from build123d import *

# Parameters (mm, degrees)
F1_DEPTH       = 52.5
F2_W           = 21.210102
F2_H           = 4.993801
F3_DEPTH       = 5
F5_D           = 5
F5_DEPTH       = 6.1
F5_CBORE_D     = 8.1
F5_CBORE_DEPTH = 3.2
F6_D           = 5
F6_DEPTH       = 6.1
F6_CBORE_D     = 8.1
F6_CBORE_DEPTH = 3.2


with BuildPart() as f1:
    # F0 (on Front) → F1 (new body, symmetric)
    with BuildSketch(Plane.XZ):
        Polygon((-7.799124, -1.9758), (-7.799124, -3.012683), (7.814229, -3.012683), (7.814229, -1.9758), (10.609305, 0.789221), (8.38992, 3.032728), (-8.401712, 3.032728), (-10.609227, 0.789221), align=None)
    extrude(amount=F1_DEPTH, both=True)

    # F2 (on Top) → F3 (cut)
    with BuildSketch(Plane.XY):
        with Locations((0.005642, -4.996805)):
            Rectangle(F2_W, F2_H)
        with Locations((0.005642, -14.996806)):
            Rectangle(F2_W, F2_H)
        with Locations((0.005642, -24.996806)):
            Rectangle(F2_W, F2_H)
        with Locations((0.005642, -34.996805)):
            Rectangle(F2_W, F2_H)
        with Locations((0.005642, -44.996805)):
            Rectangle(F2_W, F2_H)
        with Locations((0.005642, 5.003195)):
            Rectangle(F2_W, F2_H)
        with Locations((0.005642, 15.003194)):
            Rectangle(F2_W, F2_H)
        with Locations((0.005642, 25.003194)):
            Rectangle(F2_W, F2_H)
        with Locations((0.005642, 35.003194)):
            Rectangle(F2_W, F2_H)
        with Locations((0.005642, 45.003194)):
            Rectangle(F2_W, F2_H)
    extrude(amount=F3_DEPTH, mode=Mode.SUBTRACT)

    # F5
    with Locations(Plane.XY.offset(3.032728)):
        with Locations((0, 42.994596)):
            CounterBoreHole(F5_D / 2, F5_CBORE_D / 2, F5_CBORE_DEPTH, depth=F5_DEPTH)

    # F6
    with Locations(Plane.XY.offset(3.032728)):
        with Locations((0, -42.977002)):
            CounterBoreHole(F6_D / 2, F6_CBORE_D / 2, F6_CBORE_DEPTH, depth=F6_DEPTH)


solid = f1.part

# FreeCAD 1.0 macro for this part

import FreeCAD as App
import Part
import Sketcher
from FreeCAD import Vector


def add_polygon(sketch, points):
    """Adds a closed chain of lines whose ends are joined by coincident constraints."""
    first, n = sketch.GeometryCount, len(points)
    for a, b in zip(points, points[1:] + points[:1]):
        sketch.addGeometry(Part.LineSegment(App.Vector(*a, 0), App.Vector(*b, 0)), False)
    for i in range(n):
        sketch.addConstraint(Sketcher.Constraint("Coincident", first + i, 2, first + (i + 1) % n, 1))

doc = App.newDocument("Part")
body = doc.addObject("PartDesign::Body", "Body")

# Sketch on XZ plane
sketch1 = body.newObject("Sketcher::SketchObject", "Sketch")
sketch1.AttachmentSupport = (doc.getObject("XZ_Plane"), [""])
sketch1.MapMode = "FlatFace"
add_polygon(sketch1, [(-7.799124, -1.9758), (-7.799124, -3.012683), (7.814229, -3.012683), (7.814229, -1.9758), (10.609305, 0.789221), (8.38992, 3.032728), (-8.401712, 3.032728), (-10.609227, 0.789221)])  # lines 0-7
sketch1.addConstraint([
    Sketcher.Constraint("Vertical", 0),
    Sketcher.Constraint("Horizontal", 1),
    Sketcher.Constraint("Vertical", 2),
    Sketcher.Constraint("Horizontal", 5),
    Sketcher.Constraint("Perpendicular", 3, 4),
    Sketcher.Constraint("Perpendicular", 6, 7),
    Sketcher.Constraint("Horizontal", 3, 2, 6, 2),
    Sketcher.Constraint("Horizontal", 2, 2, 7, 2),
    Sketcher.Constraint("DistanceX", 5, 2, 5, 1, 16.791632),
    Sketcher.Constraint("DistanceY", 2, 2, -1, 1, 1.9758),
    Sketcher.Constraint("Distance", 3, 3.93164),
    Sketcher.Constraint("Distance", 6, 3.147451),
    Sketcher.Constraint("DistanceX", 1, 1, 1, 2, 15.613353),
    Sketcher.Constraint("DistanceY", 0, 2, 0, 1, 1.036883),
    Sketcher.Constraint("DistanceX", -1, 1, 1, 2, 7.814229),
    Sketcher.Constraint("DistanceY", -1, 1, 3, 2, 0.789221),
])
pad1 = body.newObject("PartDesign::Pad", "Pad")
pad1.Profile = sketch1
pad1.Length = 105
pad1.Midplane = True

# Sketch on XY plane
sketch2 = body.newObject("Sketcher::SketchObject", "Sketch001")
sketch2.AttachmentSupport = (doc.getObject("XY_Plane"), [""])
sketch2.MapMode = "FlatFace"
add_polygon(sketch2, [(-10.599409, -2.499904), (-10.599409, -7.493705), (10.610693, -7.493705), (10.610693, -2.499904)])  # lines 0-3
add_polygon(sketch2, [(-10.599409, -12.499906), (-10.599409, -17.493706), (10.610693, -17.493706), (10.610693, -12.499906)])  # lines 4-7
add_polygon(sketch2, [(-10.599409, -22.499906), (-10.599409, -27.493706), (10.610693, -27.493706), (10.610693, -22.499906)])  # lines 8-11
add_polygon(sketch2, [(-10.599409, -32.499904), (-10.599409, -37.493705), (10.610693, -37.493705), (10.610693, -32.499904)])  # lines 12-15
add_polygon(sketch2, [(-10.599409, -42.499904), (-10.599409, -47.493705), (10.610693, -47.493705), (10.610693, -42.499904)])  # lines 16-19
add_polygon(sketch2, [(-10.599409, 7.500095), (-10.599409, 2.506295), (10.610693, 2.506295), (10.610693, 7.500095)])  # lines 20-23
add_polygon(sketch2, [(-10.599409, 17.500094), (-10.599409, 12.506293), (10.610693, 12.506293), (10.610693, 17.500094)])  # lines 24-27
add_polygon(sketch2, [(-10.599409, 27.500094), (-10.599409, 22.506294), (10.610693, 22.506294), (10.610693, 27.500094)])  # lines 28-31
add_polygon(sketch2, [(-10.599409, 37.500095), (-10.599409, 32.506293), (10.610693, 32.506293), (10.610693, 37.500095)])  # lines 32-35
add_polygon(sketch2, [(-10.599409, 47.500095), (-10.599409, 42.506293), (10.610693, 42.506293), (10.610693, 47.500095)])  # lines 36-39
sketch2.addConstraint([
    Sketcher.Constraint("Vertical", 0),
    Sketcher.Constraint("Horizontal", 1),
    Sketcher.Constraint("Vertical", 2),
    Sketcher.Constraint("Horizontal", 3),
    Sketcher.Constraint("Vertical", 4),
    Sketcher.Constraint("Horizontal", 5),
    Sketcher.Constraint("Vertical", 6),
    Sketcher.Constraint("Horizontal", 7),
    Sketcher.Constraint("Vertical", 8),
    Sketcher.Constraint("Horizontal", 9),
    Sketcher.Constraint("Vertical", 10),
    Sketcher.Constraint("Horizontal", 11),
    Sketcher.Constraint("Vertical", 12),
    Sketcher.Constraint("Horizontal", 13),
    Sketcher.Constraint("Vertical", 14),
    Sketcher.Constraint("Horizontal", 15),
    Sketcher.Constraint("Vertical", 16),
    Sketcher.Constraint("Horizontal", 17),
    Sketcher.Constraint("Vertical", 18),
    Sketcher.Constraint("Horizontal", 19),
    Sketcher.Constraint("Vertical", 20),
    Sketcher.Constraint("Horizontal", 21),
    Sketcher.Constraint("Vertical", 22),
    Sketcher.Constraint("Horizontal", 23),
    Sketcher.Constraint("Vertical", 24),
    Sketcher.Constraint("Horizontal", 25),
    Sketcher.Constraint("Vertical", 26),
    Sketcher.Constraint("Horizontal", 27),
    Sketcher.Constraint("Vertical", 28),
    Sketcher.Constraint("Horizontal", 29),
    Sketcher.Constraint("Vertical", 30),
    Sketcher.Constraint("Horizontal", 31),
    Sketcher.Constraint("Vertical", 32),
    Sketcher.Constraint("Horizontal", 33),
    Sketcher.Constraint("Vertical", 34),
    Sketcher.Constraint("Horizontal", 35),
    Sketcher.Constraint("Vertical", 36),
    Sketcher.Constraint("Horizontal", 37),
    Sketcher.Constraint("Vertical", 38),
    Sketcher.Constraint("Horizontal", 39),
    Sketcher.Constraint("Vertical", 3, 2, 4, 2),
    Sketcher.Constraint("Vertical", 2, 2, 5, 2),
    Sketcher.Constraint("Vertical", 7, 2, 8, 2),
    Sketcher.Constraint("Vertical", 6, 2, 9, 2),
    Sketcher.Constraint("Vertical", 11, 2, 12, 2),
    Sketcher.Constraint("Vertical", 10, 2, 13, 2),
    Sketcher.Constraint("Vertical", 15, 2, 16, 2),
    Sketcher.Constraint("Vertical", 14, 2, 17, 2),
    Sketcher.Constraint("Vertical", 19, 2, 20, 2),
    Sketcher.Constraint("Vertical", 18, 2, 21, 2),
    Sketcher.Constraint("Vertical", 23, 2, 24, 2),
    Sketcher.Constraint("Vertical", 22, 2, 25, 2),
    Sketcher.Constraint("Vertical", 27, 2, 28, 2),
    Sketcher.Constraint("Vertical", 26, 2, 29, 2),
    Sketcher.Constraint("Vertical", 31, 2, 32, 2),
    Sketcher.Constraint("Vertical", 30, 2, 33, 2),
    Sketcher.Constraint("Vertical", 35, 2, 36, 2),
    Sketcher.Constraint("Vertical", 34, 2, 37, 2),
    Sketcher.Constraint("Equal", 2, 4),
    Sketcher.Constraint("Equal", 6, 8),
    Sketcher.Constraint("Equal", 10, 12),
    Sketcher.Constraint("Equal", 14, 16),
    Sketcher.Constraint("Equal", 18, 20),
    Sketcher.Constraint("Equal", 22, 24),
    Sketcher.Constraint("Equal", 26, 28),
    Sketcher.Constraint("Equal", 30, 32),
    Sketcher.Constraint("Equal", 34, 36),
    Sketcher.Constraint("DistanceY", 4, 2, 0, 2, 10.000001),
    Sketcher.Constraint("DistanceY", 8, 2, 4, 2, 10.0),
    Sketcher.Constraint("DistanceY", 12, 2, 8, 2, 9.999999),
    Sketcher.Constraint("DistanceY", 16, 2, 12, 2, 10.0),
    Sketcher.Constraint("DistanceY", 0, 2, 20, 2, 10.0),
    Sketcher.Constraint("DistanceY", 20, 2, 24, 2, 9.999999),
    Sketcher.Constraint("DistanceY", 24, 2, 28, 2, 10.0),
    Sketcher.Constraint("DistanceY", 28, 2, 32, 2, 10.0),
    Sketcher.Constraint("DistanceY", 32, 2, 36, 2, 10.0),
    Sketcher.Constraint("DistanceX", 1, 1, 1, 2, 21.210102),
    Sketcher.Constraint("DistanceY", 0, 2, 0, 1, 4.993801),
    Sketcher.Constraint("DistanceX", 0, 2, -1, 1, 10.599409),
    Sketcher.Constraint("DistanceY", 0, 2, -1, 1, 7.493705),
])
pocket1 = body.newObject("PartDesign::Pocket", "Pocket")
pocket1.Profile = sketch2
pocket1.Length = 5
pocket1.Reversed = True

# Sketch on XY plane
sketch3 = body.newObject("Sketcher::SketchObject", "Sketch002")
sketch3.AttachmentSupport = (doc.getObject("XY_Plane"), [""])
sketch3.MapMode = "FlatFace"
sketch3.AttachmentOffset = App.Placement(Vector(0, 0, 3.032728), App.Rotation())
sketch3.addGeometry(Part.Circle(Vector(0, 42.994596, 0), Vector(0, 0, 1), 2.5), False)
sketch3.addConstraint([
    Sketcher.Constraint("PointOnObject", 0, 3, -2),
    Sketcher.Constraint("Diameter", 0, 5.0),
    Sketcher.Constraint("DistanceY", -1, 1, 0, 3, 42.994596),
])
doc.recompute()
hole = body.newObject("PartDesign::Hole", "Hole")
hole.Profile = sketch3
hole.ThreadType = "None"
hole.Diameter = 5
hole.DepthType = "Dimension"
hole.Depth = 6.1
hole.DrillPoint = "Flat"
hole.HoleCutType = "Counterbore"
hole.HoleCutDiameter = 8.1
hole.HoleCutDepth = 3.2

# Sketch on XY plane
sketch4 = body.newObject("Sketcher::SketchObject", "Sketch003")
sketch4.AttachmentSupport = (doc.getObject("XY_Plane"), [""])
sketch4.MapMode = "FlatFace"
sketch4.AttachmentOffset = App.Placement(Vector(0, 0, 3.032728), App.Rotation())
sketch4.addGeometry(Part.Circle(Vector(0, -42.977002, 0), Vector(0, 0, 1), 2.5), False)
sketch4.addConstraint([
    Sketcher.Constraint("PointOnObject", 0, 3, -2),
    Sketcher.Constraint("Diameter", 0, 5.0),
    Sketcher.Constraint("DistanceY", 0, 3, -1, 1, 42.977002),
])
doc.recompute()
hole2 = body.newObject("PartDesign::Hole", "Hole001")
hole2.Profile = sketch4
hole2.ThreadType = "None"
hole2.Diameter = 5
hole2.DepthType = "Dimension"
hole2.Depth = 6.1
hole2.DrillPoint = "Flat"
hole2.HoleCutType = "Counterbore"
hole2.HoleCutDiameter = 8.1
hole2.HoleCutDepth = 3.2

doc.recompute()
